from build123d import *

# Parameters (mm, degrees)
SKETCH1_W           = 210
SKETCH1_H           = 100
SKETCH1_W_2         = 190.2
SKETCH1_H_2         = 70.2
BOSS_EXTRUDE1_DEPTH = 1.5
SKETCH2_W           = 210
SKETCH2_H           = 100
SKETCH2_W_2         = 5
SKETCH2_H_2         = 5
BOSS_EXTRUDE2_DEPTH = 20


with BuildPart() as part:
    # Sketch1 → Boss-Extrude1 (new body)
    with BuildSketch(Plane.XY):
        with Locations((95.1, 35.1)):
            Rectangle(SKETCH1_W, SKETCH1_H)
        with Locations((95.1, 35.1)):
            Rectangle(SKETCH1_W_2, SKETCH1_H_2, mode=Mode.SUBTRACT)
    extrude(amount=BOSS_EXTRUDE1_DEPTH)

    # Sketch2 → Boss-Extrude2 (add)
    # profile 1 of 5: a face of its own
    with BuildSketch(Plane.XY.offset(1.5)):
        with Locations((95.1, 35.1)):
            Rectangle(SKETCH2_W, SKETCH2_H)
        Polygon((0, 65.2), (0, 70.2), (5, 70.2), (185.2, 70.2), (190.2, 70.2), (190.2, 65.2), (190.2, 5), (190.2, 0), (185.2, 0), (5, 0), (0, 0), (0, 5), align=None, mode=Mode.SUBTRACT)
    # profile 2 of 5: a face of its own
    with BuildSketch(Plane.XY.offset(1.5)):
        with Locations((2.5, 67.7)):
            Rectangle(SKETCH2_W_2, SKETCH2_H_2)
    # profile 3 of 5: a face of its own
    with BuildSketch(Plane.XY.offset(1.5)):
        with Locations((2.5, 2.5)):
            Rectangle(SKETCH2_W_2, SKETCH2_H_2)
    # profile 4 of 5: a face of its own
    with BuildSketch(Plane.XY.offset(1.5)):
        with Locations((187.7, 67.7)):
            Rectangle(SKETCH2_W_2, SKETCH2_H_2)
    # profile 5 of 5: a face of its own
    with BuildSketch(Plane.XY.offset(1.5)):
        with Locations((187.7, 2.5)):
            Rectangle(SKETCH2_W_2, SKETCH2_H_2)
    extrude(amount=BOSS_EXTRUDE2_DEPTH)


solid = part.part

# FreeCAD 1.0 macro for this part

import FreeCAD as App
import Part
import Sketcher

V = App.Vector
Q = App.Units.Quantity

doc = App.newDocument("Part")
body = doc.addObject("PartDesign::Body", "Body")

# Sketch on XY plane
sketch1 = body.newObject("Sketcher::SketchObject", "Sketch")
sketch1.AttachmentSupport = (doc.getObject("XY_Plane"), [""])
sketch1.MapMode = "FlatFace"
sketch1.addGeometry(Part.LineSegment(V(-10, 85, 0), V(-10, -15, 0)), False)
sketch1.addGeometry(Part.LineSegment(V(-10, -15, 0), V(200, -15, 0)), False)
sketch1.addGeometry(Part.LineSegment(V(200, -15, 0), V(200, 85, 0)), False)
sketch1.addGeometry(Part.LineSegment(V(200, 85, 0), V(-10, 85, 0)), False)
sketch1.addGeometry(Part.LineSegment(V(190, 0, 0), V(0, 0, 0)), False)
sketch1.addGeometry(Part.LineSegment(V(0, 0, 0), V(0, 70, 0)), False)
sketch1.addGeometry(Part.LineSegment(V(0, 70, 0), V(190, 70, 0)), False)
sketch1.addGeometry(Part.LineSegment(V(190, 70, 0), V(190, 0, 0)), False)
sketch1.addConstraint(Sketcher.Constraint("Coincident", 0, 2, 1, 1))
sketch1.addConstraint(Sketcher.Constraint("Coincident", 1, 2, 2, 1))
sketch1.addConstraint(Sketcher.Constraint("Coincident", 2, 2, 3, 1))
sketch1.addConstraint(Sketcher.Constraint("Coincident", 3, 2, 0, 1))
sketch1.addConstraint(Sketcher.Constraint("Coincident", 4, 2, 5, 1))
sketch1.addConstraint(Sketcher.Constraint("Coincident", 5, 2, 6, 1))
sketch1.addConstraint(Sketcher.Constraint("Coincident", 6, 2, 7, 1))
sketch1.addConstraint(Sketcher.Constraint("Coincident", 7, 2, 4, 1))
sketch1.addConstraint(Sketcher.Constraint("Vertical", 0))
sketch1.addConstraint(Sketcher.Constraint("Horizontal", 1))
sketch1.addConstraint(Sketcher.Constraint("Vertical", 2))
sketch1.addConstraint(Sketcher.Constraint("Horizontal", 3))
sketch1.addConstraint(Sketcher.Constraint("Horizontal", 4))
sketch1.addConstraint(Sketcher.Constraint("Vertical", 5))
sketch1.addConstraint(Sketcher.Constraint("Horizontal", 6))
sketch1.addConstraint(Sketcher.Constraint("Vertical", 7))
sketch1.addConstraint(Sketcher.Constraint("Coincident", 4, 2, -1, 1))
sketch1.addConstraint(Sketcher.Constraint("DistanceX", 1, 1, 1, 2, Q("210 mm")))
sketch1.addConstraint(Sketcher.Constraint("DistanceY", 0, 2, 0, 1, Q("100 mm")))
sketch1.addConstraint(Sketcher.Constraint("DistanceX", 4, 2, 4, 1, Q("190.2 mm")))
sketch1.addConstraint(Sketcher.Constraint("DistanceY", 5, 1, 5, 2, Q("70.2 mm")))
sketch1.addConstraint(Sketcher.Constraint("DistanceX", 0, 2, -1, 1, Q("9.9 mm")))
sketch1.addConstraint(Sketcher.Constraint("DistanceY", 0, 2, -1, 1, Q("14.9 mm")))
pad1 = body.newObject("PartDesign::Pad", "Pad")
pad1.Profile = sketch1
pad1.Length = 1.5

# Sketch on XY plane
sketch2 = body.newObject("Sketcher::SketchObject", "Sketch001")
sketch2.AttachmentSupport = (doc.getObject("XY_Plane"), [""])
sketch2.MapMode = "FlatFace"
sketch2.AttachmentOffset = App.Placement(V(0, 0, 1.5), App.Rotation())
sketch2.addGeometry(Part.LineSegment(V(-10, 85, 0), V(-10, -15, 0)), False)
sketch2.addGeometry(Part.LineSegment(V(-10, -15, 0), V(200, -15, 0)), False)
sketch2.addGeometry(Part.LineSegment(V(200, -15, 0), V(200, 85, 0)), False)
sketch2.addGeometry(Part.LineSegment(V(200, 85, 0), V(-10, 85, 0)), False)
sketch2.addGeometry(Part.LineSegment(V(0, 5, 0), V(0, 65, 0)), False)
sketch2.addGeometry(Part.LineSegment(V(0, 65, 0), V(5, 65, 0)), False)
sketch2.addGeometry(Part.LineSegment(V(5, 65, 0), V(5, 70, 0)), False)
sketch2.addGeometry(Part.LineSegment(V(5, 70, 0), V(185, 70, 0)), False)
sketch2.addGeometry(Part.LineSegment(V(185, 70, 0), V(185, 65, 0)), False)
sketch2.addGeometry(Part.LineSegment(V(185, 65, 0), V(190, 65, 0)), False)
sketch2.addGeometry(Part.LineSegment(V(190, 65, 0), V(190, 5, 0)), False)
sketch2.addGeometry(Part.LineSegment(V(190, 5, 0), V(185, 5, 0)), False)
sketch2.addGeometry(Part.LineSegment(V(185, 5, 0), V(185, 0, 0)), False)
sketch2.addGeometry(Part.LineSegment(V(185, 0, 0), V(5, 0, 0)), False)
sketch2.addGeometry(Part.LineSegment(V(5, 0, 0), V(5, 5, 0)), False)
sketch2.addGeometry(Part.LineSegment(V(5, 5, 0), V(0, 5, 0)), False)
sketch2.addConstraint(Sketcher.Constraint("Coincident", 0, 2, 1, 1))
sketch2.addConstraint(Sketcher.Constraint("Coincident", 1, 2, 2, 1))
sketch2.addConstraint(Sketcher.Constraint("Coincident", 2, 2, 3, 1))
sketch2.addConstraint(Sketcher.Constraint("Coincident", 3, 2, 0, 1))
sketch2.addConstraint(Sketcher.Constraint("Coincident", 4, 2, 5, 1))
sketch2.addConstraint(Sketcher.Constraint("Coincident", 5, 2, 6, 1))
sketch2.addConstraint(Sketcher.Constraint("Coincident", 6, 2, 7, 1))
sketch2.addConstraint(Sketcher.Constraint("Coincident", 7, 2, 8, 1))
sketch2.addConstraint(Sketcher.Constraint("Coincident", 8, 2, 9, 1))
sketch2.addConstraint(Sketcher.Constraint("Coincident", 9, 2, 10, 1))
sketch2.addConstraint(Sketcher.Constraint("Coincident", 10, 2, 11, 1))
sketch2.addConstraint(Sketcher.Constraint("Coincident", 11, 2, 12, 1))
sketch2.addConstraint(Sketcher.Constraint("Coincident", 12, 2, 13, 1))
sketch2.addConstraint(Sketcher.Constraint("Coincident", 13, 2, 14, 1))
sketch2.addConstraint(Sketcher.Constraint("Coincident", 14, 2, 15, 1))
sketch2.addConstraint(Sketcher.Constraint("Coincident", 15, 2, 4, 1))
sketch2.addConstraint(Sketcher.Constraint("Vertical", 0))
sketch2.addConstraint(Sketcher.Constraint("Horizontal", 1))
sketch2.addConstraint(Sketcher.Constraint("Vertical", 2))
sketch2.addConstraint(Sketcher.Constraint("Horizontal", 3))
sketch2.addConstraint(Sketcher.Constraint("Vertical", 4))
sketch2.addConstraint(Sketcher.Constraint("Horizontal", 5))
sketch2.addConstraint(Sketcher.Constraint("Vertical", 6))
sketch2.addConstraint(Sketcher.Constraint("Horizontal", 7))
sketch2.addConstraint(Sketcher.Constraint("Vertical", 8))
sketch2.addConstraint(Sketcher.Constraint("Horizontal", 9))
sketch2.addConstraint(Sketcher.Constraint("Vertical", 10))
sketch2.addConstraint(Sketcher.Constraint("Horizontal", 11))
sketch2.addConstraint(Sketcher.Constraint("Vertical", 12))
sketch2.addConstraint(Sketcher.Constraint("Horizontal", 13))
sketch2.addConstraint(Sketcher.Constraint("Vertical", 14))
sketch2.addConstraint(Sketcher.Constraint("Horizontal", 15))
sketch2.addConstraint(Sketcher.Constraint("PointOnObject", 4, 2, -2))
sketch2.addConstraint(Sketcher.Constraint("PointOnObject", 12, 2, -1))
sketch2.addConstraint(Sketcher.Constraint("Horizontal", 5, 2, 8, 2))
sketch2.addConstraint(Sketcher.Constraint("Horizontal", 11, 2, 14, 2))
sketch2.addConstraint(Sketcher.Constraint("Vertical", 8, 2, 11, 2))
sketch2.addConstraint(Sketcher.Constraint("Vertical", 6, 2, 13, 2))
sketch2.addConstraint(Sketcher.Constraint("Equal", 5, 9))
sketch2.addConstraint(Sketcher.Constraint("Equal", 15, 6))
sketch2.addConstraint(Sketcher.Constraint("Equal", 8, 12))
sketch2.addConstraint(Sketcher.Constraint("DistanceX", 1, 1, 1, 2, Q("210 mm")))
sketch2.addConstraint(Sketcher.Constraint("DistanceX", 5, 1, 5, 2, Q("5 mm")))
sketch2.addConstraint(Sketcher.Constraint("DistanceY", 0, 2, 0, 1, Q("100 mm")))
sketch2.addConstraint(Sketcher.Constraint("DistanceX", 7, 1, 7, 2, Q("180.2 mm")))
sketch2.addConstraint(Sketcher.Constraint("DistanceY", 4, 1, 4, 2, Q("60.2 mm")))
sketch2.addConstraint(Sketcher.Constraint("DistanceX", 0, 2, -1, 1, Q("9.9 mm")))
sketch2.addConstraint(Sketcher.Constraint("DistanceY", 0, 2, -1, 1, Q("14.9 mm")))
pad2 = body.newObject("PartDesign::Pad", "Pad001")
pad2.Profile = sketch2
pad2.Length = 20

doc.recompute()
